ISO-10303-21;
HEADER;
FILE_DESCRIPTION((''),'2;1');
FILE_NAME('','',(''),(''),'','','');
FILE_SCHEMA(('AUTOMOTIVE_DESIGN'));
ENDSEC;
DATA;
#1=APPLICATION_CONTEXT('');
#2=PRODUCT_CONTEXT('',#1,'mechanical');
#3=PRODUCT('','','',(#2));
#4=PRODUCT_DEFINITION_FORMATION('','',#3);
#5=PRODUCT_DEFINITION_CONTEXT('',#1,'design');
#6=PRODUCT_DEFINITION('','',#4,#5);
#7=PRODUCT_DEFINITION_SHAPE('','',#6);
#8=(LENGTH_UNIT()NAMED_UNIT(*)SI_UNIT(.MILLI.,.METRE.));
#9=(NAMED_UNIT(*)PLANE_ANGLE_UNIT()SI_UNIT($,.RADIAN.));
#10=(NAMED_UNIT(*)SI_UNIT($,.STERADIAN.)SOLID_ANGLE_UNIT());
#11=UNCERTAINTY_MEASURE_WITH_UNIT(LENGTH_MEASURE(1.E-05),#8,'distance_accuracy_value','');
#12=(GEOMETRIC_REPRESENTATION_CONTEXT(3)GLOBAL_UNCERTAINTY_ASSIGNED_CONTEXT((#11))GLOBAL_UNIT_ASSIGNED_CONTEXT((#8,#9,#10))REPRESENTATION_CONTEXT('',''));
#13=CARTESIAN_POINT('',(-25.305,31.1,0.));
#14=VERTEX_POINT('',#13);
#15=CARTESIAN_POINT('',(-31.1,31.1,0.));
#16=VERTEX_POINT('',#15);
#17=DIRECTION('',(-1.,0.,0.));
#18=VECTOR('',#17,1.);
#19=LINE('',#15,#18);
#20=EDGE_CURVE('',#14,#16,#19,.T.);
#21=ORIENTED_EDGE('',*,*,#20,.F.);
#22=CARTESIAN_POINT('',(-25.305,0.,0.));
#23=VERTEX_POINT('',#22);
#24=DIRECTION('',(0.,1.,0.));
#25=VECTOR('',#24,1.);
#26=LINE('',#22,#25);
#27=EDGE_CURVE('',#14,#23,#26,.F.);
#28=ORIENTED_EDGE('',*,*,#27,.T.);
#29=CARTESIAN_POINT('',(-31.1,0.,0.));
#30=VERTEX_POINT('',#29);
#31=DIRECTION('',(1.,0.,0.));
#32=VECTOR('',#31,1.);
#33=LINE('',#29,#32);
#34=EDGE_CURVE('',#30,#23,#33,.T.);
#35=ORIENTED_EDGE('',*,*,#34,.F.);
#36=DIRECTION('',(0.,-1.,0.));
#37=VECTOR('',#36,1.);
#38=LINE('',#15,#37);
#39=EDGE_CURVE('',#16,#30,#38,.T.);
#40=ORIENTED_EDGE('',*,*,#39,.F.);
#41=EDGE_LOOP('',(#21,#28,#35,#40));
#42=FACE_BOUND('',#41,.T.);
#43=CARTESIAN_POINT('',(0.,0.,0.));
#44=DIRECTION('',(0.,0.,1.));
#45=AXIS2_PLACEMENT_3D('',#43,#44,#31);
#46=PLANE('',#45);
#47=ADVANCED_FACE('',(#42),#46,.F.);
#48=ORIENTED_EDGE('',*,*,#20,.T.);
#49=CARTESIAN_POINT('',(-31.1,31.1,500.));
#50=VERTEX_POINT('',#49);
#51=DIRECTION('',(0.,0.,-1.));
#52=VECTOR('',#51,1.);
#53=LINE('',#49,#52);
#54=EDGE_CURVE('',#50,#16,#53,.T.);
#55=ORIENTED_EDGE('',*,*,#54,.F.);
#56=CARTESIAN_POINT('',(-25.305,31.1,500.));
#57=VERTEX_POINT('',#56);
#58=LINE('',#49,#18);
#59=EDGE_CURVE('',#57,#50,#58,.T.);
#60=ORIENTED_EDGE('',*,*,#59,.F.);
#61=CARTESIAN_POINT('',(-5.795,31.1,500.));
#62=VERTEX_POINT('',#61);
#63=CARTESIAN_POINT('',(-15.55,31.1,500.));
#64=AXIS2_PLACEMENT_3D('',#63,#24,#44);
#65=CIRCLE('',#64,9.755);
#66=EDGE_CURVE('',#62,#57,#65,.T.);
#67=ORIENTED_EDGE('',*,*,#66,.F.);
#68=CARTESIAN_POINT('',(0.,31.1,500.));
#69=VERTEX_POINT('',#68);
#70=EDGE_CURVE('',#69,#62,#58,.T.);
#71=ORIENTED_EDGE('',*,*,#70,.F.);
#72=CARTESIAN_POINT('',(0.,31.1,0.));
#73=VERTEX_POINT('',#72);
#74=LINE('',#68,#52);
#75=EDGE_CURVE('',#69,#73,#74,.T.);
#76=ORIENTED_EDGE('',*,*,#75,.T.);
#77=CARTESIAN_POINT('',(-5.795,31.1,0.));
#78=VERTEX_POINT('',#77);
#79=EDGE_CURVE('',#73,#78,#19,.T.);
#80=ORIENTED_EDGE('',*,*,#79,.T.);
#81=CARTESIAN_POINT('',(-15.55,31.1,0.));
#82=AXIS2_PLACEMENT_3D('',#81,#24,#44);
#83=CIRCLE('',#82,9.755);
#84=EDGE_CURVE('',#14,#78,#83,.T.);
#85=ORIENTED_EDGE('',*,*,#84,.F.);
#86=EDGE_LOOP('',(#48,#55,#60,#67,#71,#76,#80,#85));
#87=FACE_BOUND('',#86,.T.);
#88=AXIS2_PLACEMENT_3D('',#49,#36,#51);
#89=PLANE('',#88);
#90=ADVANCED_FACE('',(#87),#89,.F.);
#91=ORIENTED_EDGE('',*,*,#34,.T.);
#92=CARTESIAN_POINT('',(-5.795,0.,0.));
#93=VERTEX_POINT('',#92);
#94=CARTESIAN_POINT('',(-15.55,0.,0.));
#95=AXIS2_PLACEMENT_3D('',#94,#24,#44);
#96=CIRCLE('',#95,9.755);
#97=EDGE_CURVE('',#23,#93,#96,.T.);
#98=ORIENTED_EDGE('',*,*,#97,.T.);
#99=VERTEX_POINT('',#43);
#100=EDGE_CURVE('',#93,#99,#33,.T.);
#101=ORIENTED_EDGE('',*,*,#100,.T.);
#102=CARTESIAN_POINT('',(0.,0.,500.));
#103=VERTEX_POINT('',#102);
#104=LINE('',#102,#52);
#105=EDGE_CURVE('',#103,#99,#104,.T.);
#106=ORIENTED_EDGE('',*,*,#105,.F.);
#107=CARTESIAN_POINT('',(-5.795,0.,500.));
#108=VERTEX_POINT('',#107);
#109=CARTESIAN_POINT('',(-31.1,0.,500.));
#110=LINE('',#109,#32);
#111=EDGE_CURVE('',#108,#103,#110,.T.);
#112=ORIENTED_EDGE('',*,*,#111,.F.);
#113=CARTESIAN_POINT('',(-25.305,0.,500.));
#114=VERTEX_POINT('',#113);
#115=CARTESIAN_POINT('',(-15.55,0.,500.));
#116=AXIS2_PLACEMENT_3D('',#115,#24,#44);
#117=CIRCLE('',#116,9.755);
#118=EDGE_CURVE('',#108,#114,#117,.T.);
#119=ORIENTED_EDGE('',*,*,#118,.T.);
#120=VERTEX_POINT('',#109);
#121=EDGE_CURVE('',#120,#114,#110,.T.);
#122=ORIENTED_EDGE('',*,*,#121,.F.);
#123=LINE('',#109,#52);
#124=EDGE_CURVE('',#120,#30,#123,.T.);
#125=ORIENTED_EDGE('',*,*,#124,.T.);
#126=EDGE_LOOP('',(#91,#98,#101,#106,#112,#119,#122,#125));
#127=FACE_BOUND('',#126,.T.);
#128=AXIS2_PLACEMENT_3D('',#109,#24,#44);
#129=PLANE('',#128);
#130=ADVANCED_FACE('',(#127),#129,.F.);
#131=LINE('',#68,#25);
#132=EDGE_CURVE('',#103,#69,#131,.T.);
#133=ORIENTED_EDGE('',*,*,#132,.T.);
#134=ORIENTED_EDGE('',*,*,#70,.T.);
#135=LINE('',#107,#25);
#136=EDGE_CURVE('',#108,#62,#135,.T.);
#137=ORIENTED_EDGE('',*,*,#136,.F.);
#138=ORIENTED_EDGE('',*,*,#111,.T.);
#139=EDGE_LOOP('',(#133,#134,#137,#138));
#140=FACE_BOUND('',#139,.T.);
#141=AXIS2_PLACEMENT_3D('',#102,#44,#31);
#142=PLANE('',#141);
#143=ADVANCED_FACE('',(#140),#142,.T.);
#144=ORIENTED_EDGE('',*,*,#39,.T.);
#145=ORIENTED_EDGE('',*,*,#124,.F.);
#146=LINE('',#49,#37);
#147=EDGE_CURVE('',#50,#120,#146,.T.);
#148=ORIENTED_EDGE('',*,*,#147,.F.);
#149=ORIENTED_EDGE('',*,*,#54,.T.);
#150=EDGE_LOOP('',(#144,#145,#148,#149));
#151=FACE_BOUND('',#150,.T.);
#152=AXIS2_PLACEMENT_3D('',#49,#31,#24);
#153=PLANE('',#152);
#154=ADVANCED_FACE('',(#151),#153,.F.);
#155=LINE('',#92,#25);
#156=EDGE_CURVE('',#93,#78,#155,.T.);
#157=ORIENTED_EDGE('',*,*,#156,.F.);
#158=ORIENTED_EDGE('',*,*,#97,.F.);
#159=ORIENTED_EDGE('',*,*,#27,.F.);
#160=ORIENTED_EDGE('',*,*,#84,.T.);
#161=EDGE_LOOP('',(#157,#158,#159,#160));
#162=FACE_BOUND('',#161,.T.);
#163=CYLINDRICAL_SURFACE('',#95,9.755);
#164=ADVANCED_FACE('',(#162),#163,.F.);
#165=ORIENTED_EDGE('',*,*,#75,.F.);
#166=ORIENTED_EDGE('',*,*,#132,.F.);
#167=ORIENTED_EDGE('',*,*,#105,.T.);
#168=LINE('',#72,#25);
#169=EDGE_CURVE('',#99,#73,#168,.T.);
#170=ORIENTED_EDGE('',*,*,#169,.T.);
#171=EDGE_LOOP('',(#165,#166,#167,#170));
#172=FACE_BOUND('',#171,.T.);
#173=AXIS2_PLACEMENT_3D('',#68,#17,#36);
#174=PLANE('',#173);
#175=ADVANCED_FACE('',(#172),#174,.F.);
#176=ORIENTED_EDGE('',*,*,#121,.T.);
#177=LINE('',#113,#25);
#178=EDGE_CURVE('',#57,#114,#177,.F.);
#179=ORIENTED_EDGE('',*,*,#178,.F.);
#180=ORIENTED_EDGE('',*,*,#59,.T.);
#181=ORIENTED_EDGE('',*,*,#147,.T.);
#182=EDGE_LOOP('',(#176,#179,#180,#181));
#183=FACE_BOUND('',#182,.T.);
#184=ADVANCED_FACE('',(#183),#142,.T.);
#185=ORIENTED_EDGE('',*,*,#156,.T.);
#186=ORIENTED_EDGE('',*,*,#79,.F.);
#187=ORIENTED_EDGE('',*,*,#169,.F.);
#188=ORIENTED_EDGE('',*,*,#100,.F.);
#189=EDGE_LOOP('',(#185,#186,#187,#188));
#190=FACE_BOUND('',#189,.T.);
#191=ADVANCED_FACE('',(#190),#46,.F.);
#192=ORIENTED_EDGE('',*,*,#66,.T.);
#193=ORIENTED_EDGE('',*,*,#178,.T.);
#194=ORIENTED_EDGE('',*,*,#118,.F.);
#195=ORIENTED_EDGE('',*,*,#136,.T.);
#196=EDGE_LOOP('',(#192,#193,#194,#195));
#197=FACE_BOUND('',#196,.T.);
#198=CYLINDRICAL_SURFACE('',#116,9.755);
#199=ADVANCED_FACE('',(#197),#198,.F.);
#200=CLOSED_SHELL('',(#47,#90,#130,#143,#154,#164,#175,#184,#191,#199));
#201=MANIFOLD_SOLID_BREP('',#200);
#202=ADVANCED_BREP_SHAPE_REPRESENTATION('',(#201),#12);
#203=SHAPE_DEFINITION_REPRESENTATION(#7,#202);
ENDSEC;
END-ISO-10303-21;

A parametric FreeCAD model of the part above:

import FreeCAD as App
import Part
import Sketcher
from FreeCAD import Vector

doc = App.newDocument("Part")
body = doc.addObject("PartDesign::Body", "Body")

# Sketch on XY plane
sketch1 = body.newObject("Sketcher::SketchObject", "Sketch")
sketch1.AttachmentSupport = (doc.getObject("XY_Plane"), [""])
sketch1.MapMode = "FlatFace"
sketch1.addGeometry([
    Part.LineSegment(Vector(-31, 31, 0), Vector(-31, 0, 0)),
    Part.LineSegment(Vector(-31, 0, 0), Vector(0, 0, 0)),
    Part.LineSegment(Vector(0, 0, 0), Vector(0, 31, 0)),
    Part.LineSegment(Vector(0, 31, 0), Vector(-31, 31, 0)),
], False)
sketch1.addConstraint([
    Sketcher.Constraint("Coincident", 0, 2, 1, 1),
    Sketcher.Constraint("Coincident", 1, 2, 2, 1),
    Sketcher.Constraint("Coincident", 2, 2, 3, 1),
    Sketcher.Constraint("Coincident", 3, 2, 0, 1),
    Sketcher.Constraint("Vertical", 0),
    Sketcher.Constraint("Horizontal", 1),
    Sketcher.Constraint("Vertical", 2),
    Sketcher.Constraint("Horizontal", 3),
    Sketcher.Constraint("Coincident", 1, 2, -1, 1),
    Sketcher.Constraint("Equal", 3, 0),
    Sketcher.Constraint("DistanceX", 1, 1, 1, 2, 31.1),
])
pad1 = body.newObject("PartDesign::Pad", "Pad")
pad1.Profile = sketch1
pad1.Length = 500

# Sketch on XZ plane
sketch2 = body.newObject("Sketcher::SketchObject", "Sketch001")
sketch2.AttachmentSupport = (doc.getObject("XZ_Plane"), [""])
sketch2.MapMode = "FlatFace"
sketch2.AttachmentOffset = App.Placement(Vector(0, 0, -31.1), App.Rotation())
sketch2.addGeometry(Part.Circle(Vector(-16, 0, 0), Vector(0, 0, 1), 10), False)
sketch2.addConstraint([
    Sketcher.Constraint("PointOnObject", 0, 3, -1),
    Sketcher.Constraint("Diameter", 0, 19.51),
    Sketcher.Constraint("DistanceX", 0, 3, -1, 1, 15.55),
])
pocket1 = body.newObject("PartDesign::Pocket", "Pocket")
pocket1.Profile = sketch2
pocket1.Length = 31.1
pocket1.Reversed = True

# Sketch on XZ plane
sketch3 = body.newObject("Sketcher::SketchObject", "Sketch002")
sketch3.AttachmentSupport = (doc.getObject("XZ_Plane"), [""])
sketch3.MapMode = "FlatFace"
sketch3.AttachmentOffset = App.Placement(Vector(0, 0, -31.1), App.Rotation())
sketch3.addGeometry(Part.Circle(Vector(-16, 500, 0), Vector(0, 0, 1), 10), False)
sketch3.addConstraint([
    Sketcher.Constraint("Diameter", 0, 19.51),
    Sketcher.Constraint("DistanceY", -1, 1, 0, 3, 500.0),
    Sketcher.Constraint("DistanceX", 0, 3, -1, 1, 15.55),
])
pocket2 = body.newObject("PartDesign::Pocket", "Pocket001")
pocket2.Profile = sketch3
pocket2.Length = 31.1
pocket2.Reversed = True

doc.recompute()
